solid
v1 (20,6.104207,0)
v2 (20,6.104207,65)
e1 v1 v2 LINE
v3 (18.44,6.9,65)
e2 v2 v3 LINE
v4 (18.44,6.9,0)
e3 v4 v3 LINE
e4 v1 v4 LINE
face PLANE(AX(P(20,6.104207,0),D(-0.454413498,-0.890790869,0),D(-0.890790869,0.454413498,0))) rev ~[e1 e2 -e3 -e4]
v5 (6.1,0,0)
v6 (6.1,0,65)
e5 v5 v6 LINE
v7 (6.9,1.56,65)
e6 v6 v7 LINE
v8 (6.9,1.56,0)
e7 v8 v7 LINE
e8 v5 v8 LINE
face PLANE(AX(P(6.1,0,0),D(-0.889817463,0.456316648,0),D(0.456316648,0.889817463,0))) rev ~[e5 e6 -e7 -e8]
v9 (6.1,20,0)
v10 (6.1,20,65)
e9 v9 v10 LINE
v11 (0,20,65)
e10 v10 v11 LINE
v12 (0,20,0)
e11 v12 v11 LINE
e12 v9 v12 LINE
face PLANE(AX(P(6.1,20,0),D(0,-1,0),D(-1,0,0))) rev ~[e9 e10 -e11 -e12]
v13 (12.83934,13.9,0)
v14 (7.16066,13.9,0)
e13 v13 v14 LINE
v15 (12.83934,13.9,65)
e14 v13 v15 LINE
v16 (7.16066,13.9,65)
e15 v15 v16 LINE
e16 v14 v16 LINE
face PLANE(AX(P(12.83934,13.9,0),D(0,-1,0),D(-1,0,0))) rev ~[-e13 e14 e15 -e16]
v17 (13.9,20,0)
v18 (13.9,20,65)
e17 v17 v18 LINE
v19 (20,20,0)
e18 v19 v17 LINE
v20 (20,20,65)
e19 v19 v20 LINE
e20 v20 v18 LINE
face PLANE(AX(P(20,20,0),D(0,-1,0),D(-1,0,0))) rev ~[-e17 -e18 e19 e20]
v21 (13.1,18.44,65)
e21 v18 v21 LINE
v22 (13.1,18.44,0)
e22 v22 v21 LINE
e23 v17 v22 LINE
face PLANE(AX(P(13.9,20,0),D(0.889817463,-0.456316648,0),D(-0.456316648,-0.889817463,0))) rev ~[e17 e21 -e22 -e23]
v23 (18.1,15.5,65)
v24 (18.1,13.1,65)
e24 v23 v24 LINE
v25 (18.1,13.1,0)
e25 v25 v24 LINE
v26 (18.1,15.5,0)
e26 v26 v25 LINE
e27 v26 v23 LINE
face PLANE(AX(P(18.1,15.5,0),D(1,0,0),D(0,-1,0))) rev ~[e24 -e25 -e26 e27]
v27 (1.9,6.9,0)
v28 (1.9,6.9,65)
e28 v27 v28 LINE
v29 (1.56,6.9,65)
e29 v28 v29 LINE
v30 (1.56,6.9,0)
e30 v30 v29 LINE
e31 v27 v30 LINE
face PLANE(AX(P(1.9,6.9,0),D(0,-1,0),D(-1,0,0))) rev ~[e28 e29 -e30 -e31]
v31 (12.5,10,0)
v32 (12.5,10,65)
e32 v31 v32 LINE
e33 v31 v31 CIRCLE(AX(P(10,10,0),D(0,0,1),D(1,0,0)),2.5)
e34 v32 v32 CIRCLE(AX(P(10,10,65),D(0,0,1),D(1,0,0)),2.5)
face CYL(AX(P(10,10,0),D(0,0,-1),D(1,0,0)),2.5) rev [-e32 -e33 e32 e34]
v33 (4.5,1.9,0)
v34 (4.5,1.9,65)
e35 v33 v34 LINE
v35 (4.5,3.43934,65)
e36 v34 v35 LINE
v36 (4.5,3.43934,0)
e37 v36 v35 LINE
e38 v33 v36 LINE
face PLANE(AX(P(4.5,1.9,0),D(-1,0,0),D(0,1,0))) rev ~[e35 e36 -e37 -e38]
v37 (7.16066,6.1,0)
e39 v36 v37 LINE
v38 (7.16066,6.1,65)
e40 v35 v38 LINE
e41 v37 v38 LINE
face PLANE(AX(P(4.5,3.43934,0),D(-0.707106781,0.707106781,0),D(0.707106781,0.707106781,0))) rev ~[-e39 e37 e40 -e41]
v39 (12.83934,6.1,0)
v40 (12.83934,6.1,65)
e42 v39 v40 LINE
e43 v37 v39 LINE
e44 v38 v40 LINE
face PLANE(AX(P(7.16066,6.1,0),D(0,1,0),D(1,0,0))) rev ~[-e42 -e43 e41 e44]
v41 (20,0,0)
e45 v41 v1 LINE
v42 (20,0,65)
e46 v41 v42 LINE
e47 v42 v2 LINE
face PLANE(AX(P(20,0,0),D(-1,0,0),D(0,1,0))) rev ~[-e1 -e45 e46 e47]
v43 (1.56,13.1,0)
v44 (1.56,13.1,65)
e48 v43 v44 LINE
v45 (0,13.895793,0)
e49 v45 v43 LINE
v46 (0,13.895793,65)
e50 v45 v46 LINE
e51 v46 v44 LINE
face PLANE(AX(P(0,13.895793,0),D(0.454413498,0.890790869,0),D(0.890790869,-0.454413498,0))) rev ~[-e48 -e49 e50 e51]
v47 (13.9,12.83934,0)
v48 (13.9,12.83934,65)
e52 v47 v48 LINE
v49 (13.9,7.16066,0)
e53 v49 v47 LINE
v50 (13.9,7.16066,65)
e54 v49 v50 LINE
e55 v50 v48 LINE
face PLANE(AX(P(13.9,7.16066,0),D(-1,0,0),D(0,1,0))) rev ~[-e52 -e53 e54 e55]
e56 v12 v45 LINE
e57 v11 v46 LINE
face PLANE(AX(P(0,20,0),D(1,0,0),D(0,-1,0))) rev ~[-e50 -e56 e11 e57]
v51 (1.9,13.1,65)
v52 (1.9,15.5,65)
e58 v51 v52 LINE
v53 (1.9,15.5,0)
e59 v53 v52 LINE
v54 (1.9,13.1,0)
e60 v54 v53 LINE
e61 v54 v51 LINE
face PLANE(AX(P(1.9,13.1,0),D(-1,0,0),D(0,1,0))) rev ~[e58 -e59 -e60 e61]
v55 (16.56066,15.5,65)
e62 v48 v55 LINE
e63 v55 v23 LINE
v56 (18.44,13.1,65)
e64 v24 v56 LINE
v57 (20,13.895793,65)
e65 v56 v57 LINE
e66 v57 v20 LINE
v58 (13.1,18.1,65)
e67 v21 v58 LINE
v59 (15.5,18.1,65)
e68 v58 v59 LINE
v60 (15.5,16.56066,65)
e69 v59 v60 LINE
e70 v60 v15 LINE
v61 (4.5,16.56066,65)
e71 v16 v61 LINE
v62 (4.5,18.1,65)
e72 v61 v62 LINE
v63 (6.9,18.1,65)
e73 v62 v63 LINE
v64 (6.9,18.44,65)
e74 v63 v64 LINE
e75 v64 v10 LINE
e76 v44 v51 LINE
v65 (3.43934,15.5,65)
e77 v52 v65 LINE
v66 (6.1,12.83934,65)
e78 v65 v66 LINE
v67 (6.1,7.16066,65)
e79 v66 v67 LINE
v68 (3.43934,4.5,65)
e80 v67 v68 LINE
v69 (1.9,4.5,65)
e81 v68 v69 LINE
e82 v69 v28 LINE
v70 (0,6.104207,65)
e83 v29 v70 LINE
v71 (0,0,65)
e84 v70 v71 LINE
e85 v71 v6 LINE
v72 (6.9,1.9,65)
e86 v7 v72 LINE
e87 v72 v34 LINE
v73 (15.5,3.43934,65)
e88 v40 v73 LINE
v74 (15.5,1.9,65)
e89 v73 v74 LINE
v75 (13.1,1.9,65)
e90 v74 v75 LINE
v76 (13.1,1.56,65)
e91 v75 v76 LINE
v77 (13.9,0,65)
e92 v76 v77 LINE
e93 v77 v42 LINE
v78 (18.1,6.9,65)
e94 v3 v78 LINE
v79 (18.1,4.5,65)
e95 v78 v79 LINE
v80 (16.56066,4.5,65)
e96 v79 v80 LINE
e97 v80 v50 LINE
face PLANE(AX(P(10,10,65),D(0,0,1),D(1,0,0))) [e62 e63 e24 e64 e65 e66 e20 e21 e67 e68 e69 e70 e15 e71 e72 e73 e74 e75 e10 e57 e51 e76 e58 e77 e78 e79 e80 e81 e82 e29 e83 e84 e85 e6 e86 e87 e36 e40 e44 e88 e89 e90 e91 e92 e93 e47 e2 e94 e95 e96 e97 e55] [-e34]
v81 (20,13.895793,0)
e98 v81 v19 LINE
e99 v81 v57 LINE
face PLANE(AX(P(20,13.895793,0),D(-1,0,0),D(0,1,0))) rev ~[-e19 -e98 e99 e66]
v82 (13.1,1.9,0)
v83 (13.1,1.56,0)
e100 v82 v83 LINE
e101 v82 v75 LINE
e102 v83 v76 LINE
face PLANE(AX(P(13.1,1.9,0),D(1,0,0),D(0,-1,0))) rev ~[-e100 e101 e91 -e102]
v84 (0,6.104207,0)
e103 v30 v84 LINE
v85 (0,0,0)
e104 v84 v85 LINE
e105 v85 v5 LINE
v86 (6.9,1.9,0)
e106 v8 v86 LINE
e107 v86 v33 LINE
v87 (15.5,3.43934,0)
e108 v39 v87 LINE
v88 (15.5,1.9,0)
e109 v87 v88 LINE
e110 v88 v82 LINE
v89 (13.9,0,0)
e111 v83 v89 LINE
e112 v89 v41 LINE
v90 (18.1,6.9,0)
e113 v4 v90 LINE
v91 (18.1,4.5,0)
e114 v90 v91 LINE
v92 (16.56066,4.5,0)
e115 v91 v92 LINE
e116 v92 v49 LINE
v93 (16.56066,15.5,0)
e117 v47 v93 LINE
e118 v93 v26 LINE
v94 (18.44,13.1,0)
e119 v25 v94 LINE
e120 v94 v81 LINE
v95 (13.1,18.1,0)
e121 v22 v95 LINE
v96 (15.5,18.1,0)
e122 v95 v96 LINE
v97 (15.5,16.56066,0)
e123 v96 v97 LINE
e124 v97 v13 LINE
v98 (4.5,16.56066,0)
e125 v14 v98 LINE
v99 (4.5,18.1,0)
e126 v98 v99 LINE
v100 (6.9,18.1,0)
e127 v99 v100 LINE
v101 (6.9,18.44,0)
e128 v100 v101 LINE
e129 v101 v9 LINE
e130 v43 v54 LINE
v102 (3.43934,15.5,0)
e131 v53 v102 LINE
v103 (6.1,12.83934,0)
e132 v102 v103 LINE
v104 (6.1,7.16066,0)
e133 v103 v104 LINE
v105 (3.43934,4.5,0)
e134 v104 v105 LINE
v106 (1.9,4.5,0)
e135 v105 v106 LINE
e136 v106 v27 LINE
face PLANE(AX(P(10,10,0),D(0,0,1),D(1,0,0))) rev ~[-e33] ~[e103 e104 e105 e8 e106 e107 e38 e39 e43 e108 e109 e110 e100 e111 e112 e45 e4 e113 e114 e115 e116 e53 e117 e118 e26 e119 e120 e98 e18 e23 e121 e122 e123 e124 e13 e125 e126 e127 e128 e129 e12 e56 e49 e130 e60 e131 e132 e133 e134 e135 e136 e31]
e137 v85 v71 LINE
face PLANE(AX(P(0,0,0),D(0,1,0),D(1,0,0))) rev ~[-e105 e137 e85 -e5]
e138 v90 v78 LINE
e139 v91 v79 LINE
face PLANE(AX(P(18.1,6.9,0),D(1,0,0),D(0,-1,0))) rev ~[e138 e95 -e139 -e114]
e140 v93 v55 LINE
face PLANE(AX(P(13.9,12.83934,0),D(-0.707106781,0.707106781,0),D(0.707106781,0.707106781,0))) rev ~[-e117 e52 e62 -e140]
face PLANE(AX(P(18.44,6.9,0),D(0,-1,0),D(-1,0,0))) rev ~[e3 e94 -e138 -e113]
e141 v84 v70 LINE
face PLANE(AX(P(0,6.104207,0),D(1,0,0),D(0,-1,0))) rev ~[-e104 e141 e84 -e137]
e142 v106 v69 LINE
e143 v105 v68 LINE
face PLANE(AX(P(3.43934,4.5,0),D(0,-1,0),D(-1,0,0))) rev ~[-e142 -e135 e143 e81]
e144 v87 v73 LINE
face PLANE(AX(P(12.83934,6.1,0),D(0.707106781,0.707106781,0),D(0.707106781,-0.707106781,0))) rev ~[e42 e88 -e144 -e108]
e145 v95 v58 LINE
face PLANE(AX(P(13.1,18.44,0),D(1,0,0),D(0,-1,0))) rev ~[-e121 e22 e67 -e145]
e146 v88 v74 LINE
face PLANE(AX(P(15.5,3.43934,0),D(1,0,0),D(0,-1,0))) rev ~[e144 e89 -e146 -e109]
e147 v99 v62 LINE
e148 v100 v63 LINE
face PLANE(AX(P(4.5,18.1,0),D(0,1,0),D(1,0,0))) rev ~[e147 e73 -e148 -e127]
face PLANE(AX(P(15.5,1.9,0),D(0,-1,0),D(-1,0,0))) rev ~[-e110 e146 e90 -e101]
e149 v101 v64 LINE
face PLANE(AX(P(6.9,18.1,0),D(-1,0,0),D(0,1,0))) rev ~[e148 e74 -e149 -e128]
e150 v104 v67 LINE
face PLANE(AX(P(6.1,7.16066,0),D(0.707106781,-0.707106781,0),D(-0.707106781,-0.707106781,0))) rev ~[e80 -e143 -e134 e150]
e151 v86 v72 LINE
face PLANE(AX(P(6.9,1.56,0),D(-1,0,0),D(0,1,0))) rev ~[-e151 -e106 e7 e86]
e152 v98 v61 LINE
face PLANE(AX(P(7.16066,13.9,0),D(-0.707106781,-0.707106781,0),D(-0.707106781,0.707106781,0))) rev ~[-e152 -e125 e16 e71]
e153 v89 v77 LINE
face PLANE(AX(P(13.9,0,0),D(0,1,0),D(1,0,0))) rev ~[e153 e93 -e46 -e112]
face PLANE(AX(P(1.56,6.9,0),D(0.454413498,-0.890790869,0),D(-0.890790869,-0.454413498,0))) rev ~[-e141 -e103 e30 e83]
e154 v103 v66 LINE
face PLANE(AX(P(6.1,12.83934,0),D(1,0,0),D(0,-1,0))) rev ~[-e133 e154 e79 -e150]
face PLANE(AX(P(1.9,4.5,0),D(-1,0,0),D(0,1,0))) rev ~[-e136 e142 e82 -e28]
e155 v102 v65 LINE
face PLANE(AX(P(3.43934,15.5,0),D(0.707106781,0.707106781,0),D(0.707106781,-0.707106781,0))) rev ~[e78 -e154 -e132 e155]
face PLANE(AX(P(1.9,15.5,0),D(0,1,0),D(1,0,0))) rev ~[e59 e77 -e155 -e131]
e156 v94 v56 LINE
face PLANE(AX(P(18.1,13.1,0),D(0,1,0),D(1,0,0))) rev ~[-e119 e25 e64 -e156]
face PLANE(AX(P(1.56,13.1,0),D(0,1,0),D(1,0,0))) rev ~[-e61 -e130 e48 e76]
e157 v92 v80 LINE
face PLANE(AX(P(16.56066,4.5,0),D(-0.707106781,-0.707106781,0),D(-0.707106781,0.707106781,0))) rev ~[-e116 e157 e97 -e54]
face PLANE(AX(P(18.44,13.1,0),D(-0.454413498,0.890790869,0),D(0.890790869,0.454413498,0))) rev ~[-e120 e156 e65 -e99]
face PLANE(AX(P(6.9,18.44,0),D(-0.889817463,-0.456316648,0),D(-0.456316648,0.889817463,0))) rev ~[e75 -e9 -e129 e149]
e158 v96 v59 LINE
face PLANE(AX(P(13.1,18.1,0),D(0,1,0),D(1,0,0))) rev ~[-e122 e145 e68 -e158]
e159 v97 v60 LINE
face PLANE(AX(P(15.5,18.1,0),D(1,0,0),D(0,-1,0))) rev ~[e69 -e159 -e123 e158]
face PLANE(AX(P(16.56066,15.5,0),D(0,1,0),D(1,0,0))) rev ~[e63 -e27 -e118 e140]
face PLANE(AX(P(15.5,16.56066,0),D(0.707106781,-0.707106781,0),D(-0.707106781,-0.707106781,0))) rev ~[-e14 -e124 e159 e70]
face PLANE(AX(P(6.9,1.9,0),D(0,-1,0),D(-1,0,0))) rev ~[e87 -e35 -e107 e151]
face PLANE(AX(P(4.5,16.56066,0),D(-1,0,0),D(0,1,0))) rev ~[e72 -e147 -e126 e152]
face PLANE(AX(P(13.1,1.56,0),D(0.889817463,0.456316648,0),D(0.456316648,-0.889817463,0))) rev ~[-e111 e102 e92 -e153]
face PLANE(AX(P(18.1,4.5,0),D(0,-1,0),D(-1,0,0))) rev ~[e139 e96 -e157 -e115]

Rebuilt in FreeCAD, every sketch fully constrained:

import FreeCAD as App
import Part
import Sketcher
from FreeCAD import Vector

doc = App.newDocument("Part")
body = doc.addObject("PartDesign::Body", "Body")

# Sketch on XY plane
sketch1 = body.newObject("Sketcher::SketchObject", "Sketch")
sketch1.AttachmentSupport = (doc.getObject("XY_Plane"), [""])
sketch1.MapMode = "FlatFace"
sketch1.addGeometry([
    Part.LineSegment(Vector(6.1, 20, 0), Vector(0, 20, 0)),  # 0
    Part.LineSegment(Vector(0, 20, 0), Vector(0, 13.9, 0)),  # 1
    Part.LineSegment(Vector(0, 13.9, 0), Vector(1.56, 13.1, 0)),  # 2
    Part.LineSegment(Vector(1.56, 13.1, 0), Vector(1.9, 13.1, 0)),  # 3
    Part.LineSegment(Vector(1.9, 13.1, 0), Vector(1.9, 15.5, 0)),  # 4
    Part.LineSegment(Vector(1.9, 15.5, 0), Vector(3.44, 15.5, 0)),  # 5
    Part.LineSegment(Vector(3.44, 15.5, 0), Vector(6.1, 12.84, 0)),  # 6
    Part.LineSegment(Vector(6.1, 12.84, 0), Vector(6.1, 7.16, 0)),  # 7
    Part.LineSegment(Vector(6.1, 7.16, 0), Vector(3.44, 4.5, 0)),  # 8
    Part.LineSegment(Vector(3.44, 4.5, 0), Vector(1.9, 4.5, 0)),  # 9
    Part.LineSegment(Vector(1.9, 4.5, 0), Vector(1.9, 6.9, 0)),  # 10
    Part.LineSegment(Vector(1.9, 6.9, 0), Vector(1.56, 6.9, 0)),  # 11
    Part.LineSegment(Vector(1.56, 6.9, 0), Vector(0, 6.1, 0)),  # 12
    Part.LineSegment(Vector(0, 6.1, 0), Vector(0, 0, 0)),  # 13
    Part.LineSegment(Vector(0, 0, 0), Vector(6.1, 0, 0)),  # 14
    Part.LineSegment(Vector(6.1, 0, 0), Vector(6.9, 1.56, 0)),  # 15
    Part.LineSegment(Vector(6.9, 1.56, 0), Vector(6.9, 1.9, 0)),  # 16
    Part.LineSegment(Vector(6.9, 1.9, 0), Vector(4.5, 1.9, 0)),  # 17
    Part.LineSegment(Vector(4.5, 1.9, 0), Vector(4.5, 3.44, 0)),  # 18
    Part.LineSegment(Vector(4.5, 3.44, 0), Vector(7.16, 6.1, 0)),  # 19
    Part.LineSegment(Vector(7.16, 6.1, 0), Vector(12.84, 6.1, 0)),  # 20
    Part.LineSegment(Vector(12.84, 6.1, 0), Vector(15.5, 3.44, 0)),  # 21
    Part.LineSegment(Vector(15.5, 3.44, 0), Vector(15.5, 1.9, 0)),  # 22
    Part.LineSegment(Vector(15.5, 1.9, 0), Vector(13.1, 1.9, 0)),  # 23
    Part.LineSegment(Vector(13.1, 1.9, 0), Vector(13.1, 1.56, 0)),  # 24
    Part.LineSegment(Vector(13.1, 1.56, 0), Vector(13.9, 0, 0)),  # 25
    Part.LineSegment(Vector(13.9, 0, 0), Vector(20, 0, 0)),  # 26
    Part.LineSegment(Vector(20, 0, 0), Vector(20, 6.1, 0)),  # 27
    Part.LineSegment(Vector(20, 6.1, 0), Vector(18.44, 6.9, 0)),  # 28
    Part.LineSegment(Vector(18.44, 6.9, 0), Vector(18.1, 6.9, 0)),  # 29
    Part.LineSegment(Vector(18.1, 6.9, 0), Vector(18.1, 4.5, 0)),  # 30
    Part.LineSegment(Vector(18.1, 4.5, 0), Vector(16.56, 4.5, 0)),  # 31
    Part.LineSegment(Vector(16.56, 4.5, 0), Vector(13.9, 7.16, 0)),  # 32
    Part.LineSegment(Vector(13.9, 7.16, 0), Vector(13.9, 12.84, 0)),  # 33
    Part.LineSegment(Vector(13.9, 12.84, 0), Vector(16.56, 15.5, 0)),  # 34
    Part.LineSegment(Vector(16.56, 15.5, 0), Vector(18.1, 15.5, 0)),  # 35
    Part.LineSegment(Vector(18.1, 15.5, 0), Vector(18.1, 13.1, 0)),  # 36
    Part.LineSegment(Vector(18.1, 13.1, 0), Vector(18.44, 13.1, 0)),  # 37
    Part.LineSegment(Vector(18.44, 13.1, 0), Vector(20, 13.9, 0)),  # 38
    Part.LineSegment(Vector(20, 13.9, 0), Vector(20, 20, 0)),  # 39
    Part.LineSegment(Vector(20, 20, 0), Vector(13.9, 20, 0)),  # 40
    Part.LineSegment(Vector(13.9, 20, 0), Vector(13.1, 18.44, 0)),  # 41
    Part.LineSegment(Vector(13.1, 18.44, 0), Vector(13.1, 18.1, 0)),  # 42
    Part.LineSegment(Vector(13.1, 18.1, 0), Vector(15.5, 18.1, 0)),  # 43
    Part.LineSegment(Vector(15.5, 18.1, 0), Vector(15.5, 16.56, 0)),  # 44
    Part.LineSegment(Vector(15.5, 16.56, 0), Vector(12.84, 13.9, 0)),  # 45
    Part.LineSegment(Vector(12.84, 13.9, 0), Vector(7.16, 13.9, 0)),  # 46
    Part.LineSegment(Vector(7.16, 13.9, 0), Vector(4.5, 16.56, 0)),  # 47
    Part.LineSegment(Vector(4.5, 16.56, 0), Vector(4.5, 18.1, 0)),  # 48
    Part.LineSegment(Vector(4.5, 18.1, 0), Vector(6.9, 18.1, 0)),  # 49
    Part.LineSegment(Vector(6.9, 18.1, 0), Vector(6.9, 18.44, 0)),  # 50
    Part.LineSegment(Vector(6.9, 18.44, 0), Vector(6.1, 20, 0)),  # 51
    Part.Circle(Vector(10, 10, 0), Vector(0, 0, 1), 2.5),  # 52
], False)
sketch1.addConstraint([
    Sketcher.Constraint("Coincident", 0, 2, 1, 1),
    Sketcher.Constraint("Coincident", 1, 2, 2, 1),
    Sketcher.Constraint("Coincident", 2, 2, 3, 1),
    Sketcher.Constraint("Coincident", 3, 2, 4, 1),
    Sketcher.Constraint("Coincident", 4, 2, 5, 1),
    Sketcher.Constraint("Coincident", 5, 2, 6, 1),
    Sketcher.Constraint("Coincident", 6, 2, 7, 1),
    Sketcher.Constraint("Coincident", 7, 2, 8, 1),
    Sketcher.Constraint("Coincident", 8, 2, 9, 1),
    Sketcher.Constraint("Coincident", 9, 2, 10, 1),
    Sketcher.Constraint("Coincident", 10, 2, 11, 1),
    Sketcher.Constraint("Coincident", 11, 2, 12, 1),
    Sketcher.Constraint("Coincident", 12, 2, 13, 1),
    Sketcher.Constraint("Coincident", 13, 2, 14, 1),
    Sketcher.Constraint("Coincident", 14, 2, 15, 1),
    Sketcher.Constraint("Coincident", 15, 2, 16, 1),
    Sketcher.Constraint("Coincident", 16, 2, 17, 1),
    Sketcher.Constraint("Coincident", 17, 2, 18, 1),
    Sketcher.Constraint("Coincident", 18, 2, 19, 1),
    Sketcher.Constraint("Coincident", 19, 2, 20, 1),
    Sketcher.Constraint("Coincident", 20, 2, 21, 1),
    Sketcher.Constraint("Coincident", 21, 2, 22, 1),
    Sketcher.Constraint("Coincident", 22, 2, 23, 1),
    Sketcher.Constraint("Coincident", 23, 2, 24, 1),
    Sketcher.Constraint("Coincident", 24, 2, 25, 1),
    Sketcher.Constraint("Coincident", 25, 2, 26, 1),
    Sketcher.Constraint("Coincident", 26, 2, 27, 1),
    Sketcher.Constraint("Coincident", 27, 2, 28, 1),
    Sketcher.Constraint("Coincident", 28, 2, 29, 1),
    Sketcher.Constraint("Coincident", 29, 2, 30, 1),
    Sketcher.Constraint("Coincident", 30, 2, 31, 1),
    Sketcher.Constraint("Coincident", 31, 2, 32, 1),
    Sketcher.Constraint("Coincident", 32, 2, 33, 1),
    Sketcher.Constraint("Coincident", 33, 2, 34, 1),
    Sketcher.Constraint("Coincident", 34, 2, 35, 1),
    Sketcher.Constraint("Coincident", 35, 2, 36, 1),
    Sketcher.Constraint("Coincident", 36, 2, 37, 1),
    Sketcher.Constraint("Coincident", 37, 2, 38, 1),
    Sketcher.Constraint("Coincident", 38, 2, 39, 1),
    Sketcher.Constraint("Coincident", 39, 2, 40, 1),
    Sketcher.Constraint("Coincident", 40, 2, 41, 1),
    Sketcher.Constraint("Coincident", 41, 2, 42, 1),
    Sketcher.Constraint("Coincident", 42, 2, 43, 1),
    Sketcher.Constraint("Coincident", 43, 2, 44, 1),
    Sketcher.Constraint("Coincident", 44, 2, 45, 1),
    Sketcher.Constraint("Coincident", 45, 2, 46, 1),
    Sketcher.Constraint("Coincident", 46, 2, 47, 1),
    Sketcher.Constraint("Coincident", 47, 2, 48, 1),
    Sketcher.Constraint("Coincident", 48, 2, 49, 1),
    Sketcher.Constraint("Coincident", 49, 2, 50, 1),
    Sketcher.Constraint("Coincident", 50, 2, 51, 1),
    Sketcher.Constraint("Coincident", 51, 2, 0, 1),
    Sketcher.Constraint("Horizontal", 0),
    Sketcher.Constraint("Vertical", 1),
    Sketcher.Constraint("Horizontal", 3),
    Sketcher.Constraint("Vertical", 4),
    Sketcher.Constraint("Horizontal", 5),
    Sketcher.Constraint("Vertical", 7),
    Sketcher.Constraint("Horizontal", 9),
    Sketcher.Constraint("Vertical", 10),
    Sketcher.Constraint("Horizontal", 11),
    Sketcher.Constraint("Vertical", 13),
    Sketcher.Constraint("Horizontal", 14),
    Sketcher.Constraint("Vertical", 16),
    Sketcher.Constraint("Horizontal", 17),
    Sketcher.Constraint("Vertical", 18),
    Sketcher.Constraint("Horizontal", 20),
    Sketcher.Constraint("Vertical", 22),
    Sketcher.Constraint("Horizontal", 23),
    Sketcher.Constraint("Vertical", 24),
    Sketcher.Constraint("Horizontal", 26),
    Sketcher.Constraint("Vertical", 27),
    Sketcher.Constraint("Horizontal", 29),
    Sketcher.Constraint("Vertical", 30),
    Sketcher.Constraint("Horizontal", 31),
    Sketcher.Constraint("Vertical", 33),
    Sketcher.Constraint("Horizontal", 35),
    Sketcher.Constraint("Vertical", 36),
    Sketcher.Constraint("Horizontal", 37),
    Sketcher.Constraint("Vertical", 39),
    Sketcher.Constraint("Horizontal", 40),
    Sketcher.Constraint("Vertical", 42),
    Sketcher.Constraint("Horizontal", 43),
    Sketcher.Constraint("Vertical", 44),
    Sketcher.Constraint("Horizontal", 46),
    Sketcher.Constraint("Vertical", 48),
    Sketcher.Constraint("Horizontal", 49),
    Sketcher.Constraint("Vertical", 50),
    Sketcher.Constraint("Coincident", 13, 2, -1, 1),
    Sketcher.Constraint("PointOnObject", 0, 2, -2),
    Sketcher.Constraint("PointOnObject", 25, 2, -1),
    Sketcher.Constraint("Perpendicular", 6, 8),
    Sketcher.Constraint("Parallel", 8, 19),
    Sketcher.Constraint("Perpendicular", 19, 21),
    Sketcher.Constraint("Parallel", 2, 28),
    Sketcher.Constraint("Parallel", 21, 32),
    Sketcher.Constraint("Perpendicular", 32, 34),
    Sketcher.Constraint("Parallel", 12, 38),
    Sketcher.Constraint("Parallel", 15, 41),
    Sketcher.Constraint("Parallel", 34, 45),
    Sketcher.Constraint("Perpendicular", 45, 47),
    Sketcher.Constraint("Parallel", 25, 51),
    Sketcher.Constraint("Horizontal", 18, 2, 21, 2),
    Sketcher.Constraint("Horizontal", 17, 2, 22, 2),
    Sketcher.Constraint("Horizontal", 15, 2, 24, 2),
    Sketcher.Constraint("Horizontal", 12, 2, 27, 2),
    Sketcher.Constraint("Horizontal", 11, 2, 28, 2),
    Sketcher.Constraint("Horizontal", 9, 2, 30, 2),
    Sketcher.Constraint("Horizontal", 7, 2, 32, 2),
    Sketcher.Constraint("Horizontal", 6, 2, 33, 2),
    Sketcher.Constraint("Horizontal", 5, 2, 34, 2),
    Sketcher.Constraint("Horizontal", 3, 2, 36, 2),
    Sketcher.Constraint("Horizontal", 1, 2, 38, 2),
    Sketcher.Constraint("Horizontal", 0, 2, 39, 2),
    Sketcher.Constraint("Horizontal", 44, 2, 47, 2),
    Sketcher.Constraint("Horizontal", 43, 2, 48, 2),
    Sketcher.Constraint("Horizontal", 41, 2, 50, 2),
    Sketcher.Constraint("Vertical", 5, 2, 8, 2),
    Sketcher.Constraint("Vertical", 4, 2, 9, 2),
    Sketcher.Constraint("Vertical", 2, 2, 11, 2),
    Sketcher.Constraint("Vertical", 7, 2, 14, 2),
    Sketcher.Constraint("Vertical", 25, 2, 32, 2),
    Sketcher.Constraint("Vertical", 31, 2, 34, 2),
    Sketcher.Constraint("Vertical", 30, 2, 35, 2),
    Sketcher.Constraint("Vertical", 28, 2, 37, 2),
    Sketcher.Constraint("Vertical", 27, 2, 38, 2),
    Sketcher.Constraint("Vertical", 33, 2, 40, 2),
    Sketcher.Constraint("Vertical", 24, 2, 41, 2),
    Sketcher.Constraint("Vertical", 22, 2, 43, 2),
    Sketcher.Constraint("Vertical", 20, 2, 45, 2),
    Sketcher.Constraint("Vertical", 19, 2, 46, 2),
    Sketcher.Constraint("Vertical", 16, 2, 49, 2),
    Sketcher.Constraint("Vertical", 14, 2, 51, 2),
    Sketcher.Constraint("Equal", 17, 23),
    Sketcher.Constraint("Equal", 14, 26),
    Sketcher.Constraint("Equal", 11, 29),
    Sketcher.Constraint("Equal", 49, 4),
    Sketcher.Constraint("Equal", 46, 7),
    Sketcher.Constraint("Equal", 4, 10),
    Sketcher.Constraint("Equal", 1, 13),
    Sketcher.Constraint("Equal", 37, 16),
    Sketcher.Constraint("Equal", 35, 18),
    Sketcher.Constraint("Equal", 24, 42),
    Sketcher.Constraint("Equal", 22, 44),
    Sketcher.Constraint("Equal", 8, 19),
    Sketcher.Constraint("Diameter", 52, 5.0),
    Sketcher.Constraint("DistanceX", 0, 2, 0, 1, 6.1),
    Sketcher.Constraint("DistanceX", 17, 2, 17, 1, 2.4),
    Sketcher.Constraint("DistanceX", -1, 1, 52, 3, 10.0),
    Sketcher.Constraint("DistanceY", -1, 1, 52, 3, 10.0),
    Sketcher.Constraint("DistanceY", -1, 1, 0, 2, 20.0),
    Sketcher.Constraint("DistanceX", -1, 1, 26, 2, 20.0),
    Sketcher.Constraint("DistanceX", 9, 2, 15, 2, 5.0),
    Sketcher.Constraint("DistanceY", 22, 2, 28, 2, 5.0),
    Sketcher.Constraint("DistanceX", 3, 1, 3, 2, 0.34),
    Sketcher.Constraint("DistanceY", -1, 1, 2, 2, 13.1),
    Sketcher.Constraint("DistanceX", 5, 1, 5, 2, 1.53934),
    Sketcher.Constraint("DistanceY", 1, 2, 1, 1, 6.104207),
])
pad1 = body.newObject("PartDesign::Pad", "Pad")
pad1.Profile = sketch1
pad1.Length = 65

doc.recompute()
